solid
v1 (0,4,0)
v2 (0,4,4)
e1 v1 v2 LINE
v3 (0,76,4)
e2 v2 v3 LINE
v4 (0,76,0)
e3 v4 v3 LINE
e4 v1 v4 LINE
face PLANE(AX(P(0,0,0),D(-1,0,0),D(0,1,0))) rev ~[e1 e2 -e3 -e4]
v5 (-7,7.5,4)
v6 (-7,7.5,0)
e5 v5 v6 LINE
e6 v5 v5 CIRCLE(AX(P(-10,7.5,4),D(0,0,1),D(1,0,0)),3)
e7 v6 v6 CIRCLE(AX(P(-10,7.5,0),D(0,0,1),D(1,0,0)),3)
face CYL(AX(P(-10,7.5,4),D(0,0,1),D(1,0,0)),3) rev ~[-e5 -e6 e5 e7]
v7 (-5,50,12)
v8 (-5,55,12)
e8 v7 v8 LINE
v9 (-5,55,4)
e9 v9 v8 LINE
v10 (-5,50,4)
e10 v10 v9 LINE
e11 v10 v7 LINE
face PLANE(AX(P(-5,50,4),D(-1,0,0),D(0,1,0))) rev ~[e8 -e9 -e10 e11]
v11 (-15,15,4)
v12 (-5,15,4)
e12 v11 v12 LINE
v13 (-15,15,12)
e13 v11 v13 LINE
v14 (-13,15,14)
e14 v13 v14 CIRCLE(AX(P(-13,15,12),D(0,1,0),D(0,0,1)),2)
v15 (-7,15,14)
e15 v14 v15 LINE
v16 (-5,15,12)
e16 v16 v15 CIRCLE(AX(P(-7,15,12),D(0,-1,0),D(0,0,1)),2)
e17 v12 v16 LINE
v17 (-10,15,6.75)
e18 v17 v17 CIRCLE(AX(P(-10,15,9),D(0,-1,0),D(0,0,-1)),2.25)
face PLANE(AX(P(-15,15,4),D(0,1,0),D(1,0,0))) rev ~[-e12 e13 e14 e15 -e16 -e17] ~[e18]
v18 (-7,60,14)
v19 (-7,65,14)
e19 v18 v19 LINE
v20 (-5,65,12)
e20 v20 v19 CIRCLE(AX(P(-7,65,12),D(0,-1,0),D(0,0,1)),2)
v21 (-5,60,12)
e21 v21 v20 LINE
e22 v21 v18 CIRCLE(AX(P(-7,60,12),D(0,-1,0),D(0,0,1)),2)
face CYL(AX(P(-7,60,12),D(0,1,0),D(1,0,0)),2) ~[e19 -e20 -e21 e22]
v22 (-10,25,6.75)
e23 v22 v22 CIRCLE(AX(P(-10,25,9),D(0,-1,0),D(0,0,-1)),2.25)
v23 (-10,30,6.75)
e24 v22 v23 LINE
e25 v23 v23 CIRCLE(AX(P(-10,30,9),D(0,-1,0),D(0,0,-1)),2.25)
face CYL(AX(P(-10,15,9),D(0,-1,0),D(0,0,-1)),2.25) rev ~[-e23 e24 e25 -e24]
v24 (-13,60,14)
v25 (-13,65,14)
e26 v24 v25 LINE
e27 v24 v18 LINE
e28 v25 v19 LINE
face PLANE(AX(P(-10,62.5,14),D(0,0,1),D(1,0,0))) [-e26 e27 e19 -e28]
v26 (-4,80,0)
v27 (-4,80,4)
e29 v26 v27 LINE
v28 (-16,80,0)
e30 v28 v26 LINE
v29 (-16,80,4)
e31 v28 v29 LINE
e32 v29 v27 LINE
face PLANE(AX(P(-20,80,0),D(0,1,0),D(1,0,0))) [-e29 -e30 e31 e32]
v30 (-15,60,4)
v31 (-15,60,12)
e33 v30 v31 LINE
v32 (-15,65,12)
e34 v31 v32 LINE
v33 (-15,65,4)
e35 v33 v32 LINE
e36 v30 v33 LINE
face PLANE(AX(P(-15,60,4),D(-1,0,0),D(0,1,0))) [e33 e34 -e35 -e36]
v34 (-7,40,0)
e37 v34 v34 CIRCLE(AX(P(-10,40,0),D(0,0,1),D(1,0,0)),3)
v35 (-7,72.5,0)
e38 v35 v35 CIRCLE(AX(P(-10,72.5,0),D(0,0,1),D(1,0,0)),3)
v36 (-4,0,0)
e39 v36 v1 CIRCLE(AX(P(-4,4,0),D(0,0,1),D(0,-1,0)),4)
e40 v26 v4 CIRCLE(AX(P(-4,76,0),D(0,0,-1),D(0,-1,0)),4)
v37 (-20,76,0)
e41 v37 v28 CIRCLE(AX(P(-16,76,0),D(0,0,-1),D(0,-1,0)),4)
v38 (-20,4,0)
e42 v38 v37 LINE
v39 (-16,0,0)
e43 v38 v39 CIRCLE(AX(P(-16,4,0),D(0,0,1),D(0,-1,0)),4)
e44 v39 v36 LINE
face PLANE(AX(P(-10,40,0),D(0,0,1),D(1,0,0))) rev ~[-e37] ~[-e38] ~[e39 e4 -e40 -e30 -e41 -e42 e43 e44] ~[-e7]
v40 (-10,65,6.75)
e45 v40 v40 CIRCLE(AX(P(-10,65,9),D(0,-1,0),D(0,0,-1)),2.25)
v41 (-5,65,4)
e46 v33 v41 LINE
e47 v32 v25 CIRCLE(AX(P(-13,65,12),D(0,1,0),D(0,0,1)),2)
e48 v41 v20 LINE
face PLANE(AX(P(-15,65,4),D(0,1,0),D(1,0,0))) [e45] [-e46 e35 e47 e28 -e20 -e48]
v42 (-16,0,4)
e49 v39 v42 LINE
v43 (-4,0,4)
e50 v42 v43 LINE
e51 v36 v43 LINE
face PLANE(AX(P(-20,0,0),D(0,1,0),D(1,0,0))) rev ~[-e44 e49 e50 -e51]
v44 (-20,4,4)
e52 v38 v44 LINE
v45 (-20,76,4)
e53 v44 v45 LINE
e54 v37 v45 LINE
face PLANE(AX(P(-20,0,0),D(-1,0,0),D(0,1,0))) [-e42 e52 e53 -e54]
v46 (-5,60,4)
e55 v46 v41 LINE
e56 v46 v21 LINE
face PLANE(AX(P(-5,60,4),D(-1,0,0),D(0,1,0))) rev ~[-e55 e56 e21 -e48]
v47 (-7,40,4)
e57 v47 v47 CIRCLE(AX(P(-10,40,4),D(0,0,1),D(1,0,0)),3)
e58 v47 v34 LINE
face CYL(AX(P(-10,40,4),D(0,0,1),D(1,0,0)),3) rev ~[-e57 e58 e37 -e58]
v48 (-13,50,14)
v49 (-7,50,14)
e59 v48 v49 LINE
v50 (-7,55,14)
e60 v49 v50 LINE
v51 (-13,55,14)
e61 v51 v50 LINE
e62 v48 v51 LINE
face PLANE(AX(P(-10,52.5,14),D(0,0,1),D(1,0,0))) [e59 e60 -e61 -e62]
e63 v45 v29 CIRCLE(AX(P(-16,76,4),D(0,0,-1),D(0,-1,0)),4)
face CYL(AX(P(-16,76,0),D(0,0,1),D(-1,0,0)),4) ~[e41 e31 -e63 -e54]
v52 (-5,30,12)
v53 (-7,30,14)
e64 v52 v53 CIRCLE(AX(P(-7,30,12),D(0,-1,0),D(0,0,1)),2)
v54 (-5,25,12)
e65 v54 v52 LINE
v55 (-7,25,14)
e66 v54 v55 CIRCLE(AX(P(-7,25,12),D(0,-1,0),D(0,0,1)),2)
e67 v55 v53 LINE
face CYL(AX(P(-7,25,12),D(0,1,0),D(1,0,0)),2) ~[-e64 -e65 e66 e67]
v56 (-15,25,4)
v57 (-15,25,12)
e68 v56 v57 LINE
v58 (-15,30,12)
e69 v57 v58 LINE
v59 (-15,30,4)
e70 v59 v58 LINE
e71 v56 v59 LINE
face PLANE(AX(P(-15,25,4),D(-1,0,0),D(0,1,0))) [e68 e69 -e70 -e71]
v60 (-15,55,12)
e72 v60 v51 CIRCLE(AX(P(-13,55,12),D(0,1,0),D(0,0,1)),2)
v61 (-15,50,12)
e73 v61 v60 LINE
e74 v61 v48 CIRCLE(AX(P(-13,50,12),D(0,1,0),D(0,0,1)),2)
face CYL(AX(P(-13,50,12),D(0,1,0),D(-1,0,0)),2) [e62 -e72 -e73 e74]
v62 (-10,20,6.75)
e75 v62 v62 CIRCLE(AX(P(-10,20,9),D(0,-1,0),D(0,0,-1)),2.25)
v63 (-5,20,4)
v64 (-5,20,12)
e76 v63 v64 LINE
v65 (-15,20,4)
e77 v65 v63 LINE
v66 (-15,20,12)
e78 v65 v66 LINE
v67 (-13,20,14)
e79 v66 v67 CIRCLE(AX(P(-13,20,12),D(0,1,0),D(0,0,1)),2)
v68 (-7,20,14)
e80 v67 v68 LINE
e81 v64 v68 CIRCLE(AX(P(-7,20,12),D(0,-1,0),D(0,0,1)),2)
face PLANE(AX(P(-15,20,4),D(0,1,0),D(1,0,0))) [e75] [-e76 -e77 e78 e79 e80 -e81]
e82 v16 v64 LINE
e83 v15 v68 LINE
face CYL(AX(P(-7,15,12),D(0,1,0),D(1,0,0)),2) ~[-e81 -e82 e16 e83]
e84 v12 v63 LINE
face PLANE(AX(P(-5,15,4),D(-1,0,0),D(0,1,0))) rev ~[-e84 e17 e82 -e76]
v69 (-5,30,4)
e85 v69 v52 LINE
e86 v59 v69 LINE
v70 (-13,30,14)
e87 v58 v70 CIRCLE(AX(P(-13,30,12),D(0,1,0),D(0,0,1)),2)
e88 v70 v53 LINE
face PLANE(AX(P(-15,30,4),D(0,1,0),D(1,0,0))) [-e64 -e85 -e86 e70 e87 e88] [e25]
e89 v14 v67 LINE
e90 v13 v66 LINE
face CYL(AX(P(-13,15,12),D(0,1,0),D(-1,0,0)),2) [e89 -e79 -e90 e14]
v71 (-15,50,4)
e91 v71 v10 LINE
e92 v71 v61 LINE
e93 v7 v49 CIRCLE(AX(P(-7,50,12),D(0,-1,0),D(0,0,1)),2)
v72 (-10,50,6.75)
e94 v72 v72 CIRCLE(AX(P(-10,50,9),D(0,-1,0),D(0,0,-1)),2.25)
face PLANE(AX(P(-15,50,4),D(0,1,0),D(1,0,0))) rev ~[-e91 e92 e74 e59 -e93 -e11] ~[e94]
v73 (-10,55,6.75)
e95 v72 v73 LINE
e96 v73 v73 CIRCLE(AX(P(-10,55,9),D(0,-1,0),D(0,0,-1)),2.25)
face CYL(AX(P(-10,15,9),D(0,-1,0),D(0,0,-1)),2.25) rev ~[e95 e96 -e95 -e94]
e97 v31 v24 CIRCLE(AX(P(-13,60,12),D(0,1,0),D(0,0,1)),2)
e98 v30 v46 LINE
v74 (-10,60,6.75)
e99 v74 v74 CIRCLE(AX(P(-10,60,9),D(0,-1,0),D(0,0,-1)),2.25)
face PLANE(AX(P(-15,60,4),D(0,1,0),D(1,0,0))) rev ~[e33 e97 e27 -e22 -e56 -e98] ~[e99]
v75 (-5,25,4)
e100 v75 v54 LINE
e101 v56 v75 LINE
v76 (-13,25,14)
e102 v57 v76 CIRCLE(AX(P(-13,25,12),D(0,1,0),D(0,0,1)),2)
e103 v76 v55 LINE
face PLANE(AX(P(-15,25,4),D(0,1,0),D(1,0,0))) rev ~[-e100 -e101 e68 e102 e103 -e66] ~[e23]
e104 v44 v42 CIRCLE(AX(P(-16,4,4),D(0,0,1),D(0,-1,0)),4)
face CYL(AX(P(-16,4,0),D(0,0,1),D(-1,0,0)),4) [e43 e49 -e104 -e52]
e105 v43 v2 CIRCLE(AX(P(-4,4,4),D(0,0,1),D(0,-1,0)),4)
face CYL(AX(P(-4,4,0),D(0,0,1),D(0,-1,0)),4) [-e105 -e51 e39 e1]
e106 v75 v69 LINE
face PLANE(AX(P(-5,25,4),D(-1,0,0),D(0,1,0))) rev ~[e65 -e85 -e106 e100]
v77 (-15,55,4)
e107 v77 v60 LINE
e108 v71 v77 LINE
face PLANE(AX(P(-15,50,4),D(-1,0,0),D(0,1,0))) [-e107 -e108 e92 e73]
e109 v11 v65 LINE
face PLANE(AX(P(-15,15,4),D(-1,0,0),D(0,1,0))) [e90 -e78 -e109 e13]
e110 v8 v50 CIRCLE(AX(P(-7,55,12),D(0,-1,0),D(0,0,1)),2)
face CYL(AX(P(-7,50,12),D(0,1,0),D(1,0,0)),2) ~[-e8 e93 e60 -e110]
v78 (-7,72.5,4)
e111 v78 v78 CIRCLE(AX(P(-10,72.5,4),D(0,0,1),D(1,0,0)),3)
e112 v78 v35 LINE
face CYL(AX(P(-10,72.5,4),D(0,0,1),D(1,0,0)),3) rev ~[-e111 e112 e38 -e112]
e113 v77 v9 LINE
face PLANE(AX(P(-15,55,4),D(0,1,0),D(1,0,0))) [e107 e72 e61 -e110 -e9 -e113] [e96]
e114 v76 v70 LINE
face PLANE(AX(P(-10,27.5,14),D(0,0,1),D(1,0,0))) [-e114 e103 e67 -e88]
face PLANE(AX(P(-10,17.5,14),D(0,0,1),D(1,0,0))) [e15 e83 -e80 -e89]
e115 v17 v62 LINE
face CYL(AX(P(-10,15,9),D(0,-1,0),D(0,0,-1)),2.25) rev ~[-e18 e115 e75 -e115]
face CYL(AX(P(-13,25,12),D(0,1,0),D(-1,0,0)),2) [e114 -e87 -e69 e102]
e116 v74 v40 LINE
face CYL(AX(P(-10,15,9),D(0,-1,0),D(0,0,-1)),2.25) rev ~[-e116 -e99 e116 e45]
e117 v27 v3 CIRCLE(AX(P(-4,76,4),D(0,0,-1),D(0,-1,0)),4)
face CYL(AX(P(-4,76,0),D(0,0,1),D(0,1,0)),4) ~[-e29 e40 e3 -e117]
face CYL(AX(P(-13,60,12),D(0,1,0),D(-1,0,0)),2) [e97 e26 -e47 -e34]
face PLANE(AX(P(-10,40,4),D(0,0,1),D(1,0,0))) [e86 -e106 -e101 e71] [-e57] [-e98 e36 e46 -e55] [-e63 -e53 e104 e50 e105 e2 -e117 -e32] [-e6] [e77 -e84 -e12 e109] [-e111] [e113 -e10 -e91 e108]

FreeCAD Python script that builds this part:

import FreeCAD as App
import Part
import Sketcher
Q = App.Units.Quantity


def edges_at(feature, points):
    """Names of the edges that pass closest to the given points."""
    edges = feature.Shape.Edges
    near = lambda p: min(range(len(edges)), key=lambda i: edges[i].distToShape(Part.Vertex(*p))[0])
    return sorted({f"Edge{near(p) + 1}" for p in points})


def add_polygon(sketch, points):
    """Adds a closed chain of lines whose ends are joined by coincident constraints."""
    first, n = sketch.GeometryCount, len(points)
    for a, b in zip(points, points[1:] + points[:1]):
        sketch.addGeometry(Part.LineSegment(App.Vector(*a, 0), App.Vector(*b, 0)), False)
    for i in range(n):
        sketch.addConstraint(Sketcher.Constraint("Coincident", first + i, 2, first + (i + 1) % n, 1))

doc = App.newDocument("Part")
body = doc.addObject("PartDesign::Body", "Body")

sketch1 = doc.addObject("Sketcher::SketchObject", "Sketch")
body.addObject(sketch1)
sketch1.AttachmentSupport = (doc.XY_Plane, [""])
sketch1.MapMode = "FlatFace"
add_polygon(sketch1, [(-20, 80), (-20, 0), (0, 0), (0, 80)])
sketch1.addConstraint(Sketcher.Constraint("Vertical", 0))
sketch1.addConstraint(Sketcher.Constraint("Horizontal", 1))
sketch1.addConstraint(Sketcher.Constraint("Vertical", 2))
sketch1.addConstraint(Sketcher.Constraint("Horizontal", 3))
sketch1.addConstraint(Sketcher.Constraint("Coincident", 1, 2, -1, 1))
sketch1.addConstraint(Sketcher.Constraint("DistanceX", 1, 1, 1, 2, Q("20 mm")))
sketch1.addConstraint(Sketcher.Constraint("DistanceY", 0, 2, 0, 1, Q("80 mm")))
pad1 = doc.addObject("PartDesign::Pad", "Pad")
body.addObject(pad1)
pad1.Profile = sketch1
pad1.Length = 4

sketch2 = doc.addObject("Sketcher::SketchObject", "Sketch001")
body.addObject(sketch2)
sketch2.AttachmentSupport = (doc.XY_Plane, [""])
sketch2.MapMode = "FlatFace"
sketch2.AttachmentOffset = App.Placement(App.Vector(0, 0, 4), App.Rotation())
add_polygon(sketch2, [(-15, 65), (-15, 60), (-5, 60), (-5, 65)])
add_polygon(sketch2, [(-15, 55), (-15, 50), (-5, 50), (-5, 55)])
add_polygon(sketch2, [(-15, 30), (-15, 25), (-5, 25), (-5, 30)])
add_polygon(sketch2, [(-15, 20), (-15, 15), (-5, 15), (-5, 20)])
sketch2.addConstraint(Sketcher.Constraint("Vertical", 0))
sketch2.addConstraint(Sketcher.Constraint("Horizontal", 1))
sketch2.addConstraint(Sketcher.Constraint("Vertical", 2))
sketch2.addConstraint(Sketcher.Constraint("Horizontal", 3))
sketch2.addConstraint(Sketcher.Constraint("Vertical", 4))
sketch2.addConstraint(Sketcher.Constraint("Horizontal", 5))
sketch2.addConstraint(Sketcher.Constraint("Vertical", 6))
sketch2.addConstraint(Sketcher.Constraint("Horizontal", 7))
sketch2.addConstraint(Sketcher.Constraint("Vertical", 8))
sketch2.addConstraint(Sketcher.Constraint("Horizontal", 9))
sketch2.addConstraint(Sketcher.Constraint("Vertical", 10))
sketch2.addConstraint(Sketcher.Constraint("Horizontal", 11))
sketch2.addConstraint(Sketcher.Constraint("Vertical", 12))
sketch2.addConstraint(Sketcher.Constraint("Horizontal", 13))
sketch2.addConstraint(Sketcher.Constraint("Vertical", 14))
sketch2.addConstraint(Sketcher.Constraint("Horizontal", 15))
sketch2.addConstraint(Sketcher.Constraint("Vertical", 3, 2, 4, 2))
sketch2.addConstraint(Sketcher.Constraint("Vertical", 2, 2, 5, 2))
sketch2.addConstraint(Sketcher.Constraint("Vertical", 7, 2, 8, 2))
sketch2.addConstraint(Sketcher.Constraint("Vertical", 6, 2, 9, 2))
sketch2.addConstraint(Sketcher.Constraint("Vertical", 11, 2, 12, 2))
sketch2.addConstraint(Sketcher.Constraint("Vertical", 10, 2, 13, 2))
sketch2.addConstraint(Sketcher.Constraint("Equal", 2, 4))
sketch2.addConstraint(Sketcher.Constraint("Equal", 6, 8))
sketch2.addConstraint(Sketcher.Constraint("Equal", 10, 12))
sketch2.addConstraint(Sketcher.Constraint("DistanceX", 1, 1, 1, 2, Q("10 mm")))
sketch2.addConstraint(Sketcher.Constraint("DistanceY", 0, 2, 0, 1, Q("5 mm")))
sketch2.addConstraint(Sketcher.Constraint("DistanceX", 0, 2, -1, 1, Q("15 mm")))
sketch2.addConstraint(Sketcher.Constraint("DistanceY", -1, 1, 0, 2, Q("60 mm")))
sketch2.addConstraint(Sketcher.Constraint("DistanceY", -1, 1, 4, 2, Q("50 mm")))
sketch2.addConstraint(Sketcher.Constraint("DistanceY", -1, 1, 8, 2, Q("25 mm")))
sketch2.addConstraint(Sketcher.Constraint("DistanceY", -1, 1, 12, 2, Q("15 mm")))
pad2 = doc.addObject("PartDesign::Pad", "Pad001")
body.addObject(pad2)
pad2.Profile = sketch2
pad2.Length = 10

sketch3 = doc.addObject("Sketcher::SketchObject", "Sketch002")
body.addObject(sketch3)
sketch3.AttachmentSupport = (doc.XZ_Plane, [""])
sketch3.MapMode = "FlatFace"
sketch3.AttachmentOffset = App.Placement(App.Vector(0, 0, -15), App.Rotation())
sketch3.addGeometry(Part.Circle(App.Vector(-10, 9, 0), App.Vector(0, 0, 1), 2.2), False)
sketch3.addConstraint(Sketcher.Constraint("Diameter", 0, Q("4.5 mm")))
sketch3.addConstraint(Sketcher.Constraint("DistanceX", 0, 3, -1, 1, Q("10 mm")))
sketch3.addConstraint(Sketcher.Constraint("DistanceY", -1, 1, 0, 3, Q("9 mm")))
pocket1 = doc.addObject("PartDesign::Pocket", "Pocket")
body.addObject(pocket1)
pocket1.Profile = sketch3
pocket1.Type = "ThroughAll"
doc.recompute()

fillet = doc.addObject("PartDesign::Fillet", "Fillet")
body.addObject(fillet)
fillet.Base = (pocket1, edges_at(pocket1, [
    (-15, 62.5, 14),
    (-5, 62.5, 14),
    (-15, 52.5, 14),
    (-5, 52.5, 14),
    (-15, 27.5, 14),
    (-5, 27.5, 14),
    (-15, 17.5, 14),
    (-5, 17.5, 14),
]))
fillet.Radius = 2
doc.recompute()

fillet2 = doc.addObject("PartDesign::Fillet", "Fillet001")
body.addObject(fillet2)
fillet2.Base = (fillet, edges_at(fillet, [
    (-20, 80, 2),
    (0, 80, 2),
    (0, 0, 2),
    (-20, 0, 2),
]))
fillet2.Radius = 4

sketch4 = doc.addObject("Sketcher::SketchObject", "Sketch003")
body.addObject(sketch4)
sketch4.AttachmentSupport = (doc.XY_Plane, [""])
sketch4.MapMode = "FlatFace"
sketch4.AttachmentOffset = App.Placement(App.Vector(0, 0, 4), App.Rotation())
sketch4.addGeometry(Part.Circle(App.Vector(-10, 7.5, 0), App.Vector(0, 0, 1), 3), False)
sketch4.addGeometry(Part.Circle(App.Vector(-10, 72.5, 0), App.Vector(0, 0, 1), 3), False)
sketch4.addGeometry(Part.Circle(App.Vector(-10, 40, 0), App.Vector(0, 0, 1), 3), False)
sketch4.addConstraint(Sketcher.Constraint("Equal", 0, 1))
sketch4.addConstraint(Sketcher.Constraint("Equal", 1, 2))
sketch4.addConstraint(Sketcher.Constraint("Vertical", 0, 3, 1, 3))
sketch4.addConstraint(Sketcher.Constraint("Vertical", 1, 3, 2, 3))
sketch4.addConstraint(Sketcher.Constraint("Diameter", 0, Q("6 mm")))
sketch4.addConstraint(Sketcher.Constraint("DistanceX", 0, 3, -1, 1, Q("10 mm")))
sketch4.addConstraint(Sketcher.Constraint("DistanceY", -1, 1, 2, 3, Q("40 mm")))
sketch4.addConstraint(Sketcher.Constraint("DistanceY", 0, 3, 1, 3, Q("65 mm")))
sketch4.addConstraint(Sketcher.Constraint("DistanceY", -1, 1, 0, 3, Q("7.5 mm")))
pocket2 = doc.addObject("PartDesign::Pocket", "Pocket001")
body.addObject(pocket2)
pocket2.Profile = sketch4
pocket2.Type = "ThroughAll"

doc.recompute()
